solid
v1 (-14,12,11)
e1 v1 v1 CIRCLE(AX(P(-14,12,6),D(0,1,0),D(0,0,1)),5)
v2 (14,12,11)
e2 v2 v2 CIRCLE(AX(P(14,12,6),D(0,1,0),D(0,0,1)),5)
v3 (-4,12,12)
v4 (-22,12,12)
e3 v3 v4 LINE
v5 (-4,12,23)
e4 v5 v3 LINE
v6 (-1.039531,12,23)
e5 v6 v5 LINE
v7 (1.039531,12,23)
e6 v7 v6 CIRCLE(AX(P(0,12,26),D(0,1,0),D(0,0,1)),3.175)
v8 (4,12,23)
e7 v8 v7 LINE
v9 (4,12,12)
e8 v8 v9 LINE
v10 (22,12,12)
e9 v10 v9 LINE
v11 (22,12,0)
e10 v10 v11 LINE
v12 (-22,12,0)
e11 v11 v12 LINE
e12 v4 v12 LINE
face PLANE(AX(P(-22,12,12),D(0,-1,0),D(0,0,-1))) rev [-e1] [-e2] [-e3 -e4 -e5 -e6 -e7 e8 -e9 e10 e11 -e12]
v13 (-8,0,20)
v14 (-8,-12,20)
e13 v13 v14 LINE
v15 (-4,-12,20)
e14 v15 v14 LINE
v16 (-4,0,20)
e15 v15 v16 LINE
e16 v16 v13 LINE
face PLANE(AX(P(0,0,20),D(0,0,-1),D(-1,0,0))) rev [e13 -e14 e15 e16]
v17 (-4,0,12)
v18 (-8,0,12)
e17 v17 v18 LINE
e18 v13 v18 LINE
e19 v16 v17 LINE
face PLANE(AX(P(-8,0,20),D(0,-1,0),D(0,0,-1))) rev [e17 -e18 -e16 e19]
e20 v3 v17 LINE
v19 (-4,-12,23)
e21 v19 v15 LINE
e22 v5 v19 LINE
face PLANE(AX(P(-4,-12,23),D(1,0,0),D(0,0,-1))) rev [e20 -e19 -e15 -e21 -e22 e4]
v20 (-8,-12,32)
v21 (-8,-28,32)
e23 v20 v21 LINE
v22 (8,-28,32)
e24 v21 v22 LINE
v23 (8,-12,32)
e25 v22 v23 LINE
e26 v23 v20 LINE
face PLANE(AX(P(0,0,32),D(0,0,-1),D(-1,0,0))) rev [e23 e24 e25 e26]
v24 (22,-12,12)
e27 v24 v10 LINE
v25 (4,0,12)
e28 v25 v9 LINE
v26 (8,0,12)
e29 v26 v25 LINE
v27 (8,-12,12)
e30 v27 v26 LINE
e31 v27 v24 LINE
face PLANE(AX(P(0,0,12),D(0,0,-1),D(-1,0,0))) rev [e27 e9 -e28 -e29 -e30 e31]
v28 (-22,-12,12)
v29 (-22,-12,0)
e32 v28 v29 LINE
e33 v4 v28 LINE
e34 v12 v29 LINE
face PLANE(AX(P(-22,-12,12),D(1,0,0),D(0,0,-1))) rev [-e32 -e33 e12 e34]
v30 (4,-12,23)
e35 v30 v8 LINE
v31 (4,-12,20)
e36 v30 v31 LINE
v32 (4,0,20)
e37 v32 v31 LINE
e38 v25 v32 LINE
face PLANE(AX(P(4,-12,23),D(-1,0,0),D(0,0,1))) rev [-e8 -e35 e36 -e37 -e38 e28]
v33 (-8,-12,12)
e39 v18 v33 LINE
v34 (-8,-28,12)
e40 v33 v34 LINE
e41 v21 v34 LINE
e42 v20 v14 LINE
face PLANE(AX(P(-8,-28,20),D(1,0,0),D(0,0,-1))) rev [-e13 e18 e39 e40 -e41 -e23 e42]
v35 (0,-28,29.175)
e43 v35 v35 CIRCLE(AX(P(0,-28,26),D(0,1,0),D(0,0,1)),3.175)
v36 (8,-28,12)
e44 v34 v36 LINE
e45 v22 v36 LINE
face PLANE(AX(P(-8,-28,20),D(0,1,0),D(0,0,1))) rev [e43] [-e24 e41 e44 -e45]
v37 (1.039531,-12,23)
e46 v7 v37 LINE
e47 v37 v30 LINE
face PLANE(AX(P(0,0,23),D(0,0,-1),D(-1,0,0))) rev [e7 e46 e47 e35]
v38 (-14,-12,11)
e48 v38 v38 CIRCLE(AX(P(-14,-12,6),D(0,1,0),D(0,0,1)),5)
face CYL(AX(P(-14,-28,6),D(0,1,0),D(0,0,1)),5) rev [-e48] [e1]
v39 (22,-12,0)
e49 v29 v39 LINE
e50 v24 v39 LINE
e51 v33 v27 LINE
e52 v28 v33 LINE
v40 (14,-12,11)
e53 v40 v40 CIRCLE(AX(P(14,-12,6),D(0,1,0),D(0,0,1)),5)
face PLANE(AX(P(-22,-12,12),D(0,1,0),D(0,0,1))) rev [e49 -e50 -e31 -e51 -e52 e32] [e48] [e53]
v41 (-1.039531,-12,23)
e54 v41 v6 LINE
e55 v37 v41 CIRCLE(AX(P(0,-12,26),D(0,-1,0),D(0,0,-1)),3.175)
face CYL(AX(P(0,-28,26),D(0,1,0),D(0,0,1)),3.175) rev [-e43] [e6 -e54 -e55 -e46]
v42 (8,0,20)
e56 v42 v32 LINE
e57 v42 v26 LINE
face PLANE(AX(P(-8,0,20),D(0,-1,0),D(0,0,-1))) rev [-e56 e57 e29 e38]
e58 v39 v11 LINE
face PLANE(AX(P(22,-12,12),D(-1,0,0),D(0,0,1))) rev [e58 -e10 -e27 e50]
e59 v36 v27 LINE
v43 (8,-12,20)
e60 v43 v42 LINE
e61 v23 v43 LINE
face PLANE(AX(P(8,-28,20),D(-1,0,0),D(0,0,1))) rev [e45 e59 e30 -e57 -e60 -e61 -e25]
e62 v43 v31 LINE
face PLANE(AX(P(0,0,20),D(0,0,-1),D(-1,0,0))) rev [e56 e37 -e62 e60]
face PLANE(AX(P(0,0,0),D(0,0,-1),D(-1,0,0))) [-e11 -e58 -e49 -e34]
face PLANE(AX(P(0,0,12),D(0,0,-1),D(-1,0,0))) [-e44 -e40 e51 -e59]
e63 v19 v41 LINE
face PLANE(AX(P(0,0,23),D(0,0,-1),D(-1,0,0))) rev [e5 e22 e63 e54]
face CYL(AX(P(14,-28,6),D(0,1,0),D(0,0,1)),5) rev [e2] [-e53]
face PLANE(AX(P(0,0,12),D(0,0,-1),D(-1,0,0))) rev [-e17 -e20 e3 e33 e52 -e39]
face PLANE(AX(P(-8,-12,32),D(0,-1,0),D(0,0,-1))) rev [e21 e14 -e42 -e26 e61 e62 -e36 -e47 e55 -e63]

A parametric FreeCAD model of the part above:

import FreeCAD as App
import Part
import Sketcher
Q = App.Units.Quantity


def add_polygon(sketch, points):
    """Adds a closed chain of lines whose ends are joined by coincident constraints."""
    first, n = sketch.GeometryCount, len(points)
    for a, b in zip(points, points[1:] + points[:1]):
        sketch.addGeometry(Part.LineSegment(App.Vector(*a, 0), App.Vector(*b, 0)), False)
    for i in range(n):
        sketch.addConstraint(Sketcher.Constraint("Coincident", first + i, 2, first + (i + 1) % n, 1))

doc = App.newDocument("Part")
body = doc.addObject("PartDesign::Body", "Body")

# Sketch on XY plane
sketch1 = body.newObject("Sketcher::SketchObject", "Sketch")
sketch1.AttachmentSupport = (doc.getObject("XY_Plane"), [""])
sketch1.MapMode = "FlatFace"
add_polygon(sketch1, [(-22, 12), (-22, -12), (22, -12), (22, 12)])  # lines 0-3
sketch1.addConstraint(Sketcher.Constraint("Vertical", 0))
sketch1.addConstraint(Sketcher.Constraint("Horizontal", 1))
sketch1.addConstraint(Sketcher.Constraint("Vertical", 2))
sketch1.addConstraint(Sketcher.Constraint("Horizontal", 3))
sketch1.addConstraint(Sketcher.Constraint("Symmetric", 0, 2, 2, 2, -1, 1))
sketch1.addConstraint(Sketcher.Constraint("DistanceX", 1, 1, 1, 2, Q("44 mm")))
sketch1.addConstraint(Sketcher.Constraint("DistanceY", 0, 2, 0, 1, Q("24 mm")))
pad1 = body.newObject("PartDesign::Pad", "Pad")
pad1.Profile = sketch1
pad1.Length = 12

# Sketch on XY plane
sketch2 = body.newObject("Sketcher::SketchObject", "Sketch001")
sketch2.AttachmentSupport = (doc.getObject("XY_Plane"), [""])
sketch2.MapMode = "FlatFace"
sketch2.AttachmentOffset = App.Placement(App.Vector(0, 0, 12), App.Rotation())
add_polygon(sketch2, [(-4, 12), (-4, -12), (4, -12), (4, 12)])  # lines 0-3
sketch2.addConstraint(Sketcher.Constraint("Vertical", 0))
sketch2.addConstraint(Sketcher.Constraint("Horizontal", 1))
sketch2.addConstraint(Sketcher.Constraint("Vertical", 2))
sketch2.addConstraint(Sketcher.Constraint("Horizontal", 3))
sketch2.addConstraint(Sketcher.Constraint("Symmetric", 0, 2, 2, 2, -1, 1))
sketch2.addConstraint(Sketcher.Constraint("DistanceX", 1, 1, 1, 2, Q("8 mm")))
sketch2.addConstraint(Sketcher.Constraint("DistanceY", 0, 2, 0, 1, Q("24 mm")))
pad2 = body.newObject("PartDesign::Pad", "Pad001")
pad2.Profile = sketch2
pad2.Length = 11

# Sketch on XY plane
sketch3 = body.newObject("Sketcher::SketchObject", "Sketch002")
sketch3.AttachmentSupport = (doc.getObject("XY_Plane"), [""])
sketch3.MapMode = "FlatFace"
sketch3.AttachmentOffset = App.Placement(App.Vector(0, 0, 12), App.Rotation())
add_polygon(sketch3, [(-8, 0), (-8, -28), (8, -28), (8, 0)])  # lines 0-3
sketch3.addConstraint(Sketcher.Constraint("Vertical", 0))
sketch3.addConstraint(Sketcher.Constraint("Horizontal", 1))
sketch3.addConstraint(Sketcher.Constraint("Vertical", 2))
sketch3.addConstraint(Sketcher.Constraint("Horizontal", 3))
sketch3.addConstraint(Sketcher.Constraint("Symmetric", 2, 2, 3, 2, -1, 1))
sketch3.addConstraint(Sketcher.Constraint("DistanceX", 1, 1, 1, 2, Q("16 mm")))
sketch3.addConstraint(Sketcher.Constraint("DistanceY", 0, 2, 0, 1, Q("28 mm")))
pad3 = body.newObject("PartDesign::Pad", "Pad002")
pad3.Profile = sketch3
pad3.Length = 8

# Sketch on XY plane
sketch4 = body.newObject("Sketcher::SketchObject", "Sketch003")
sketch4.AttachmentSupport = (doc.getObject("XY_Plane"), [""])
sketch4.MapMode = "FlatFace"
sketch4.AttachmentOffset = App.Placement(App.Vector(0, 0, 20), App.Rotation())
add_polygon(sketch4, [(-8, -12), (-8, -28), (8, -28), (8, -12)])  # lines 0-3
sketch4.addConstraint(Sketcher.Constraint("Vertical", 0))
sketch4.addConstraint(Sketcher.Constraint("Horizontal", 1))
sketch4.addConstraint(Sketcher.Constraint("Vertical", 2))
sketch4.addConstraint(Sketcher.Constraint("Horizontal", 3))
sketch4.addConstraint(Sketcher.Constraint("Equal", 3, 0))
sketch4.addConstraint(Sketcher.Constraint("DistanceX", 1, 1, 1, 2, Q("16 mm")))
sketch4.addConstraint(Sketcher.Constraint("DistanceX", 0, 2, -1, 1, Q("8 mm")))
sketch4.addConstraint(Sketcher.Constraint("DistanceY", 0, 2, -1, 1, Q("28 mm")))
pad4 = body.newObject("PartDesign::Pad", "Pad003")
pad4.Profile = sketch4
pad4.Length = 12

# Sketch on XZ plane
sketch5 = body.newObject("Sketcher::SketchObject", "Sketch004")
sketch5.AttachmentSupport = (doc.getObject("XZ_Plane"), [""])
sketch5.MapMode = "FlatFace"
sketch5.addGeometry(Part.Circle(App.Vector(-14, 6, 0), App.Vector(0, 0, 1), 5), False)
sketch5.addGeometry(Part.Circle(App.Vector(14, 6, 0), App.Vector(0, 0, 1), 5), False)
sketch5.addConstraint(Sketcher.Constraint("Equal", 0, 1))
sketch5.addConstraint(Sketcher.Constraint("Symmetric", 0, 3, 1, 3, -2))
sketch5.addConstraint(Sketcher.Constraint("Diameter", 0, Q("10 mm")))
sketch5.addConstraint(Sketcher.Constraint("DistanceX", 0, 3, -1, 1, Q("14 mm")))
sketch5.addConstraint(Sketcher.Constraint("DistanceY", -1, 1, 0, 3, Q("6 mm")))
pocket1 = body.newObject("PartDesign::Pocket", "Pocket")
pocket1.Profile = sketch5
pocket1.Type = "ThroughAll"
pocket1.Midplane = True

# Sketch on XZ plane
sketch6 = body.newObject("Sketcher::SketchObject", "Sketch005")
sketch6.AttachmentSupport = (doc.getObject("XZ_Plane"), [""])
sketch6.MapMode = "FlatFace"
sketch6.addGeometry(Part.Circle(App.Vector(0, 26, 0), App.Vector(0, 0, 1), 3.175), False)
sketch6.addConstraint(Sketcher.Constraint("PointOnObject", 0, 3, -2))
sketch6.addConstraint(Sketcher.Constraint("Diameter", 0, Q("6.35 mm")))
sketch6.addConstraint(Sketcher.Constraint("DistanceY", -1, 1, 0, 3, Q("26 mm")))
pocket2 = body.newObject("PartDesign::Pocket", "Pocket001")
pocket2.Profile = sketch6
pocket2.Type = "ThroughAll"
pocket2.Midplane = True

doc.recompute()
